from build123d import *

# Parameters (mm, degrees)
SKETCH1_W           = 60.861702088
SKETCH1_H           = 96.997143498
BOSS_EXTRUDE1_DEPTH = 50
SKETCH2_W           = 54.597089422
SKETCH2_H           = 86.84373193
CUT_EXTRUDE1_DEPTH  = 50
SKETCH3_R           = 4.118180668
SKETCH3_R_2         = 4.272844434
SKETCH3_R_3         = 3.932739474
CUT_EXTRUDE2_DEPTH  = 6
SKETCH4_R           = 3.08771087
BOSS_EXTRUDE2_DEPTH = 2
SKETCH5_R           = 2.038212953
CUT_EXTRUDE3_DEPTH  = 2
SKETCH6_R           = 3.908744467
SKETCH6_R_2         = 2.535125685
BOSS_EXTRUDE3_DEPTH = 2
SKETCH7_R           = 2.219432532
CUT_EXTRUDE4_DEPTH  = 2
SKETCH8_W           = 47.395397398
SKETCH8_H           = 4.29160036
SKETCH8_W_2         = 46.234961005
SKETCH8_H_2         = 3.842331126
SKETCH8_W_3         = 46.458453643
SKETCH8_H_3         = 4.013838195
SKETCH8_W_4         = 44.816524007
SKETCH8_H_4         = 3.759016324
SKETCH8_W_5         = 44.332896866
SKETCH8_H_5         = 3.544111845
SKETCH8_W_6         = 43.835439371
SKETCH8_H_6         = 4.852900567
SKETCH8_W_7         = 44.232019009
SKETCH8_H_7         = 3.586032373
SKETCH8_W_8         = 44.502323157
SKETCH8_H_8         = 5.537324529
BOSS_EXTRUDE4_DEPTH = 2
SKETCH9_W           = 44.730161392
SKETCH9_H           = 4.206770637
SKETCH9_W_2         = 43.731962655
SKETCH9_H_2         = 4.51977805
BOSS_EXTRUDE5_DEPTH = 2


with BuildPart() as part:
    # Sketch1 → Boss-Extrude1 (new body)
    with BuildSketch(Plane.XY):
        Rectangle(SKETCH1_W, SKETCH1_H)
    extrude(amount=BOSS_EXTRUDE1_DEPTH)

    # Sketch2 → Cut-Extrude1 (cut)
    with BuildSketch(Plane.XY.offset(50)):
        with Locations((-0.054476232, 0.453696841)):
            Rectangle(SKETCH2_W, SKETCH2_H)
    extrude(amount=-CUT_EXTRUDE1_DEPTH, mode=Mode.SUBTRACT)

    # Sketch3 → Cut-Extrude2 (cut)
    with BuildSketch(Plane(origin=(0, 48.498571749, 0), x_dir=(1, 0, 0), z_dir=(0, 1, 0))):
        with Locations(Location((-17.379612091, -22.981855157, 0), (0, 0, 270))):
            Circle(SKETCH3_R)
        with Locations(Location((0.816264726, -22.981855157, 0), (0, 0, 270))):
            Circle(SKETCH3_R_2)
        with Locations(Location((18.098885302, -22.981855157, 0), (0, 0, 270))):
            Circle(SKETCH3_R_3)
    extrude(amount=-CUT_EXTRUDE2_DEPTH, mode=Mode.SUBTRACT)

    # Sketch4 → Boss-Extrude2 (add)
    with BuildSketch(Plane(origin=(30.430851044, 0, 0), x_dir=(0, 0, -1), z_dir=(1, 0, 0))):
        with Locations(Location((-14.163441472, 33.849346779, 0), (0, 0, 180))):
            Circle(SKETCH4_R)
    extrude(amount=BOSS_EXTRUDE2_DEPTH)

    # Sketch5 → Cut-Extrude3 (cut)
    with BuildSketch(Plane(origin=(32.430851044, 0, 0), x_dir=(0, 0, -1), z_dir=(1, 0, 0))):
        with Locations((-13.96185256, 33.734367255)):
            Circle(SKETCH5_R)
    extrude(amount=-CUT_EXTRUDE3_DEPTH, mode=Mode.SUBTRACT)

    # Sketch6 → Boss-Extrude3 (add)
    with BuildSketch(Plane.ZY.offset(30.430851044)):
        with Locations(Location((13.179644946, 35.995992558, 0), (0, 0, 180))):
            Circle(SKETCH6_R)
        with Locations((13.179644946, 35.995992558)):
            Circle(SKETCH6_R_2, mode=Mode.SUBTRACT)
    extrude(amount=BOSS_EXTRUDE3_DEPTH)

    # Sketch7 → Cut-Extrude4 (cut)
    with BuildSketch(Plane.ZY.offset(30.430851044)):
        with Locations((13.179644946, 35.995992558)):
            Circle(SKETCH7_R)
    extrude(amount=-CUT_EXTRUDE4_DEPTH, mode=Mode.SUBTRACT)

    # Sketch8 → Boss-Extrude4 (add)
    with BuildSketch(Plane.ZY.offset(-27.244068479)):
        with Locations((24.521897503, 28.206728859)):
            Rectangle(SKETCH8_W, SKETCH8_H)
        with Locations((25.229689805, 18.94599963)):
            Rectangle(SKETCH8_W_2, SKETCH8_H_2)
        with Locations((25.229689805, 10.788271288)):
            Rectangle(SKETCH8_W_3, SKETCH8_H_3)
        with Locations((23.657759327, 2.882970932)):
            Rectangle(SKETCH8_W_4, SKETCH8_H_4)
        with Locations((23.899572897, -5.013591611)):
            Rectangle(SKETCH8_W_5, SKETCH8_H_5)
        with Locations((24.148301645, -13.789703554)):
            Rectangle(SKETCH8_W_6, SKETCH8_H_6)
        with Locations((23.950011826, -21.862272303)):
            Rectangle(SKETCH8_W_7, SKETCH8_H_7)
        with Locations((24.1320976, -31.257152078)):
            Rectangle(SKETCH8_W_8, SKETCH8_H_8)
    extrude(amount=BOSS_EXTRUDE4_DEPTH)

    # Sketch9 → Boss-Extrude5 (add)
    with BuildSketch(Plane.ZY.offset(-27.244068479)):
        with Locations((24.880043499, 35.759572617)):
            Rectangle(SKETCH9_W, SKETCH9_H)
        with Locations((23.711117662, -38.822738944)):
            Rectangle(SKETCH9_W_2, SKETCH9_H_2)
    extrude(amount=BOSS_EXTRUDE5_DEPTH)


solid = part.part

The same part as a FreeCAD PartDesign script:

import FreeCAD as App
import Part
import Sketcher
Q = App.Units.Quantity


def add_polygon(sketch, points):
    """Adds a closed chain of lines whose ends are joined by coincident constraints."""
    first, n = sketch.GeometryCount, len(points)
    for a, b in zip(points, points[1:] + points[:1]):
        sketch.addGeometry(Part.LineSegment(App.Vector(*a, 0), App.Vector(*b, 0)), False)
    for i in range(n):
        sketch.addConstraint(Sketcher.Constraint("Coincident", first + i, 2, first + (i + 1) % n, 1))

doc = App.newDocument("Part")
body = doc.addObject("PartDesign::Body", "Body")

# Sketch on XY plane
sketch1 = doc.addObject("Sketcher::SketchObject", "Sketch")
body.addObject(sketch1)
sketch1.AttachmentSupport = (doc.XY_Plane, [""])
sketch1.MapMode = "FlatFace"
add_polygon(sketch1, [(-30, 48), (-30, -48), (30, -48), (30, 48)])  # lines 0-3
sketch1.addConstraint(Sketcher.Constraint("Vertical", 0))
sketch1.addConstraint(Sketcher.Constraint("Horizontal", 1))
sketch1.addConstraint(Sketcher.Constraint("Vertical", 2))
sketch1.addConstraint(Sketcher.Constraint("Horizontal", 3))
sketch1.addConstraint(Sketcher.Constraint("Symmetric", 0, 2, 2, 2, -1, 1))
sketch1.addConstraint(Sketcher.Constraint("DistanceX", 1, 1, 1, 2, Q("60.861702 mm")))
sketch1.addConstraint(Sketcher.Constraint("DistanceY", 0, 2, 0, 1, Q("96.997143 mm")))
pad1 = doc.addObject("PartDesign::Pad", "Pad")
body.addObject(pad1)
pad1.Profile = sketch1
pad1.Length = 50

# Sketch on XY plane
sketch2 = doc.addObject("Sketcher::SketchObject", "Sketch001")
body.addObject(sketch2)
sketch2.AttachmentSupport = (doc.XY_Plane, [""])
sketch2.MapMode = "FlatFace"
sketch2.AttachmentOffset = App.Placement(App.Vector(0, 0, 50), App.Rotation())
add_polygon(sketch2, [(-27, 44), (-27, -43), (27, -43), (27, 44)])  # lines 0-3
sketch2.addConstraint(Sketcher.Constraint("Vertical", 0))
sketch2.addConstraint(Sketcher.Constraint("Horizontal", 1))
sketch2.addConstraint(Sketcher.Constraint("Vertical", 2))
sketch2.addConstraint(Sketcher.Constraint("Horizontal", 3))
sketch2.addConstraint(Sketcher.Constraint("DistanceX", 1, 1, 1, 2, Q("54.597089 mm")))
sketch2.addConstraint(Sketcher.Constraint("DistanceY", 0, 2, 0, 1, Q("86.843732 mm")))
sketch2.addConstraint(Sketcher.Constraint("DistanceX", 0, 2, -1, 1, Q("27.353021 mm")))
sketch2.addConstraint(Sketcher.Constraint("DistanceY", 0, 2, -1, 1, Q("42.968169 mm")))
pocket1 = doc.addObject("PartDesign::Pocket", "Pocket")
body.addObject(pocket1)
pocket1.Profile = sketch2
pocket1.Length = 50

# Sketch on XZ plane
sketch3 = doc.addObject("Sketcher::SketchObject", "Sketch002")
body.addObject(sketch3)
sketch3.AttachmentSupport = (doc.XZ_Plane, [""])
sketch3.MapMode = "FlatFace"
sketch3.AttachmentOffset = App.Placement(App.Vector(0, 0, -48.498572), App.Rotation())
sketch3.addGeometry(Part.Circle(App.Vector(-17.4, 23, 0), App.Vector(0, 0, 1), 4.1), False)
sketch3.addGeometry(Part.Circle(App.Vector(0.8, 23, 0), App.Vector(0, 0, 1), 4.3), False)
sketch3.addGeometry(Part.Circle(App.Vector(18.1, 23, 0), App.Vector(0, 0, 1), 3.9), False)
sketch3.addConstraint(Sketcher.Constraint("Horizontal", 0, 3, 1, 3))
sketch3.addConstraint(Sketcher.Constraint("Horizontal", 1, 3, 2, 3))
sketch3.addConstraint(Sketcher.Constraint("Diameter", 0, Q("8.236361 mm")))
sketch3.addConstraint(Sketcher.Constraint("Diameter", 1, Q("8.545689 mm")))
sketch3.addConstraint(Sketcher.Constraint("Diameter", 2, Q("7.865479 mm")))
sketch3.addConstraint(Sketcher.Constraint("DistanceX", 1, 3, 2, 3, Q("17.282621 mm")))
sketch3.addConstraint(Sketcher.Constraint("DistanceX", 0, 3, -1, 1, Q("17.379612 mm")))
sketch3.addConstraint(Sketcher.Constraint("DistanceY", -1, 1, 0, 3, Q("22.981855 mm")))
sketch3.addConstraint(Sketcher.Constraint("DistanceX", -1, 1, 1, 3, Q("0.816265 mm")))
pocket2 = doc.addObject("PartDesign::Pocket", "Pocket001")
body.addObject(pocket2)
pocket2.Profile = sketch3
pocket2.Length = 6
pocket2.Reversed = True

# Sketch on YZ plane
sketch4 = doc.addObject("Sketcher::SketchObject", "Sketch003")
body.addObject(sketch4)
sketch4.AttachmentSupport = (doc.YZ_Plane, [""])
sketch4.MapMode = "FlatFace"
sketch4.AttachmentOffset = App.Placement(App.Vector(0, 0, 30.430851), App.Rotation())
sketch4.addGeometry(Part.Circle(App.Vector(33.8, 14.2, 0), App.Vector(0, 0, 1), 3.1), False)
sketch4.addConstraint(Sketcher.Constraint("Diameter", 0, Q("6.175422 mm")))
sketch4.addConstraint(Sketcher.Constraint("DistanceY", -1, 1, 0, 3, Q("14.163441 mm")))
sketch4.addConstraint(Sketcher.Constraint("DistanceX", -1, 1, 0, 3, Q("33.849347 mm")))
pad2 = doc.addObject("PartDesign::Pad", "Pad001")
body.addObject(pad2)
pad2.Profile = sketch4
pad2.Length = 2

# Sketch on YZ plane
sketch5 = doc.addObject("Sketcher::SketchObject", "Sketch004")
body.addObject(sketch5)
sketch5.AttachmentSupport = (doc.YZ_Plane, [""])
sketch5.MapMode = "FlatFace"
sketch5.AttachmentOffset = App.Placement(App.Vector(0, 0, 32.430851), App.Rotation())
sketch5.addGeometry(Part.Circle(App.Vector(33.7, 14, 0), App.Vector(0, 0, 1), 2), False)
sketch5.addConstraint(Sketcher.Constraint("Diameter", 0, Q("4.076426 mm")))
sketch5.addConstraint(Sketcher.Constraint("DistanceX", -1, 1, 0, 3, Q("33.734367 mm")))
sketch5.addConstraint(Sketcher.Constraint("DistanceY", -1, 1, 0, 3, Q("13.961853 mm")))
pocket3 = doc.addObject("PartDesign::Pocket", "Pocket002")
body.addObject(pocket3)
pocket3.Profile = sketch5
pocket3.Length = 2

# Sketch on YZ plane
sketch6 = doc.addObject("Sketcher::SketchObject", "Sketch005")
body.addObject(sketch6)
sketch6.AttachmentSupport = (doc.YZ_Plane, [""])
sketch6.MapMode = "FlatFace"
sketch6.AttachmentOffset = App.Placement(App.Vector(0, 0, -30.430851), App.Rotation())
sketch6.addGeometry(Part.Circle(App.Vector(36, 13.2, 0), App.Vector(0, 0, 1), 3.9), False)
sketch6.addGeometry(Part.Circle(App.Vector(36, 13.2, 0), App.Vector(0, 0, 1), 2.5), False)
sketch6.addConstraint(Sketcher.Constraint("Coincident", 1, 3, 0, 3))
sketch6.addConstraint(Sketcher.Constraint("Diameter", 0, Q("7.817489 mm")))
sketch6.addConstraint(Sketcher.Constraint("Diameter", 1, Q("5.070251 mm")))
sketch6.addConstraint(Sketcher.Constraint("DistanceX", -1, 1, 0, 3, Q("35.995993 mm")))
sketch6.addConstraint(Sketcher.Constraint("DistanceY", -1, 1, 0, 3, Q("13.179645 mm")))
pad3 = doc.addObject("PartDesign::Pad", "Pad002")
body.addObject(pad3)
pad3.Profile = sketch6
pad3.Length = 2
pad3.Reversed = True

# Sketch on YZ plane
sketch7 = doc.addObject("Sketcher::SketchObject", "Sketch006")
body.addObject(sketch7)
sketch7.AttachmentSupport = (doc.YZ_Plane, [""])
sketch7.MapMode = "FlatFace"
sketch7.AttachmentOffset = App.Placement(App.Vector(0, 0, -30.430851), App.Rotation())
sketch7.addGeometry(Part.Circle(App.Vector(36, 13.2, 0), App.Vector(0, 0, 1), 2.2), False)
sketch7.addConstraint(Sketcher.Constraint("Diameter", 0, Q("4.438865 mm")))
sketch7.addConstraint(Sketcher.Constraint("DistanceX", -1, 1, 0, 3, Q("35.995993 mm")))
sketch7.addConstraint(Sketcher.Constraint("DistanceY", -1, 1, 0, 3, Q("13.179645 mm")))
pocket4 = doc.addObject("PartDesign::Pocket", "Pocket003")
body.addObject(pocket4)
pocket4.Profile = sketch7
pocket4.Length = 2
pocket4.Reversed = True

# Sketch on YZ plane
sketch8 = doc.addObject("Sketcher::SketchObject", "Sketch007")
body.addObject(sketch8)
sketch8.AttachmentSupport = (doc.YZ_Plane, [""])
sketch8.MapMode = "FlatFace"
sketch8.AttachmentOffset = App.Placement(App.Vector(0, 0, 27.244068), App.Rotation())
add_polygon(sketch8, [(30.4, 0.8), (26.1, 0.8), (26.1, 48.2), (30.4, 48.2)])  # lines 0-3
add_polygon(sketch8, [(20.9, 2.1), (17, 2.1), (17, 48.3), (20.9, 48.3)])  # lines 4-7
add_polygon(sketch8, [(12.8, 2), (8.8, 2), (8.8, 48.5), (12.8, 48.5)])  # lines 8-11
add_polygon(sketch8, [(4.8, 1.2), (1, 1.2), (1, 46.1), (4.8, 46.1)])  # lines 12-15
add_polygon(sketch8, [(-3.2, 1.7), (-6.8, 1.7), (-6.8, 46.1), (-3.2, 46.1)])  # lines 16-19
add_polygon(sketch8, [(-11.4, 2.2), (-16.2, 2.2), (-16.2, 46.1), (-11.4, 46.1)])  # lines 20-23
add_polygon(sketch8, [(-20.1, 1.8), (-23.7, 1.8), (-23.7, 46.1), (-20.1, 46.1)])  # lines 24-27
add_polygon(sketch8, [(-28.5, 1.9), (-34, 1.9), (-34, 46.4), (-28.5, 46.4)])  # lines 28-31
sketch8.addConstraint(Sketcher.Constraint("Horizontal", 0))
sketch8.addConstraint(Sketcher.Constraint("Vertical", 1))
sketch8.addConstraint(Sketcher.Constraint("Horizontal", 2))
sketch8.addConstraint(Sketcher.Constraint("Vertical", 3))
sketch8.addConstraint(Sketcher.Constraint("Horizontal", 4))
sketch8.addConstraint(Sketcher.Constraint("Vertical", 5))
sketch8.addConstraint(Sketcher.Constraint("Horizontal", 6))
sketch8.addConstraint(Sketcher.Constraint("Vertical", 7))
sketch8.addConstraint(Sketcher.Constraint("Horizontal", 8))
sketch8.addConstraint(Sketcher.Constraint("Vertical", 9))
sketch8.addConstraint(Sketcher.Constraint("Horizontal", 10))
sketch8.addConstraint(Sketcher.Constraint("Vertical", 11))
sketch8.addConstraint(Sketcher.Constraint("Horizontal", 12))
sketch8.addConstraint(Sketcher.Constraint("Vertical", 13))
sketch8.addConstraint(Sketcher.Constraint("Horizontal", 14))
sketch8.addConstraint(Sketcher.Constraint("Vertical", 15))
sketch8.addConstraint(Sketcher.Constraint("Horizontal", 16))
sketch8.addConstraint(Sketcher.Constraint("Vertical", 17))
sketch8.addConstraint(Sketcher.Constraint("Horizontal", 18))
sketch8.addConstraint(Sketcher.Constraint("Vertical", 19))
sketch8.addConstraint(Sketcher.Constraint("Horizontal", 20))
sketch8.addConstraint(Sketcher.Constraint("Vertical", 21))
sketch8.addConstraint(Sketcher.Constraint("Horizontal", 22))
sketch8.addConstraint(Sketcher.Constraint("Vertical", 23))
sketch8.addConstraint(Sketcher.Constraint("Horizontal", 24))
sketch8.addConstraint(Sketcher.Constraint("Vertical", 25))
sketch8.addConstraint(Sketcher.Constraint("Horizontal", 26))
sketch8.addConstraint(Sketcher.Constraint("Vertical", 27))
sketch8.addConstraint(Sketcher.Constraint("Horizontal", 28))
sketch8.addConstraint(Sketcher.Constraint("Vertical", 29))
sketch8.addConstraint(Sketcher.Constraint("Horizontal", 30))
sketch8.addConstraint(Sketcher.Constraint("Vertical", 31))
sketch8.addConstraint(Sketcher.Constraint("Horizontal", 14, 2, 17, 2))
sketch8.addConstraint(Sketcher.Constraint("Horizontal", 18, 2, 21, 2))
sketch8.addConstraint(Sketcher.Constraint("Horizontal", 22, 2, 25, 2))
sketch8.addConstraint(Sketcher.Constraint("DistanceX", 0, 2, 0, 1, Q("4.2916 mm")))
sketch8.addConstraint(Sketcher.Constraint("DistanceX", 20, 2, 20, 1, Q("4.852901 mm")))
sketch8.addConstraint(Sketcher.Constraint("DistanceX", 16, 2, 8, 2, Q("15.567 mm")))
sketch8.addConstraint(Sketcher.Constraint("DistanceX", 18, 2, 13, 2, Q("4.244998 mm")))
sketch8.addConstraint(Sketcher.Constraint("DistanceX", 4, 2, 4, 1, Q("3.842331 mm")))
sketch8.addConstraint(Sketcher.Constraint("DistanceX", 8, 2, 8, 1, Q("4.013838 mm")))
sketch8.addConstraint(Sketcher.Constraint("DistanceX", 16, 2, 16, 1, Q("3.544112 mm")))
sketch8.addConstraint(Sketcher.Constraint("DistanceY", 5, 1, 5, 2, Q("46.234961 mm")))
sketch8.addConstraint(Sketcher.Constraint("DistanceY", 21, 1, 21, 2, Q("43.835439 mm")))
sketch8.addConstraint(Sketcher.Constraint("DistanceY", 25, 1, 25, 2, Q("44.232019 mm")))
sketch8.addConstraint(Sketcher.Constraint("DistanceY", -1, 1, 0, 2, Q("0.824199 mm")))
sketch8.addConstraint(Sketcher.Constraint("DistanceY", 0, 2, 12, 2, Q("0.425299 mm")))
sketch8.addConstraint(Sketcher.Constraint("DistanceX", 30, 2, 25, 2, Q("4.833201 mm")))
sketch8.addConstraint(Sketcher.Constraint("DistanceX", 12, 2, 12, 1, Q("3.759016 mm")))
sketch8.addConstraint(Sketcher.Constraint("DistanceX", 24, 2, 24, 1, Q("3.586032 mm")))
sketch8.addConstraint(Sketcher.Constraint("DistanceX", 28, 2, 28, 1, Q("5.537325 mm")))
sketch8.addConstraint(Sketcher.Constraint("DistanceY", 1, 1, 1, 2, Q("47.395397 mm")))
sketch8.addConstraint(Sketcher.Constraint("DistanceY", 9, 1, 9, 2, Q("46.458454 mm")))
sketch8.addConstraint(Sketcher.Constraint("DistanceY", 13, 1, 13, 2, Q("44.816524 mm")))
sketch8.addConstraint(Sketcher.Constraint("DistanceY", 17, 1, 17, 2, Q("44.332897 mm")))
sketch8.addConstraint(Sketcher.Constraint("DistanceY", 29, 1, 29, 2, Q("44.502323 mm")))
sketch8.addConstraint(Sketcher.Constraint("DistanceX", -1, 1, 0, 2, Q("26.060929 mm")))
sketch8.addConstraint(Sketcher.Constraint("DistanceY", -1, 1, 4, 2, Q("2.112209 mm")))
sketch8.addConstraint(Sketcher.Constraint("DistanceX", -1, 1, 10, 2, Q("12.79519 mm")))
sketch8.addConstraint(Sketcher.Constraint("DistanceX", 24, 2, -1, 1, Q("23.655288 mm")))
sketch8.addConstraint(Sketcher.Constraint("DistanceY", -1, 1, 29, 2, Q("46.383259 mm")))
sketch8.addConstraint(Sketcher.Constraint("DistanceX", 8, 2, 4, 2, Q("8.243482 mm")))
sketch8.addConstraint(Sketcher.Constraint("DistanceY", 1, 2, 9, 2, Q("0.23932 mm")))
sketch8.addConstraint(Sketcher.Constraint("DistanceX", 20, 2, 19, 2, Q("12.974618 mm")))
pad4 = doc.addObject("PartDesign::Pad", "Pad003")
body.addObject(pad4)
pad4.Profile = sketch8
pad4.Length = 2
pad4.Reversed = True

# Sketch on YZ plane
sketch9 = doc.addObject("Sketcher::SketchObject", "Sketch008")
body.addObject(sketch9)
sketch9.AttachmentSupport = (doc.YZ_Plane, [""])
sketch9.MapMode = "FlatFace"
sketch9.AttachmentOffset = App.Placement(App.Vector(0, 0, 27.244068), App.Rotation())
add_polygon(sketch9, [(37.9, 2.5), (33.7, 2.5), (33.7, 47.2), (37.9, 47.2)])  # lines 0-3
add_polygon(sketch9, [(-36.6, 1.8), (-41.1, 1.8), (-41.1, 45.6), (-36.6, 45.6)])  # lines 4-7
sketch9.addConstraint(Sketcher.Constraint("Horizontal", 0))
sketch9.addConstraint(Sketcher.Constraint("Vertical", 1))
sketch9.addConstraint(Sketcher.Constraint("Horizontal", 2))
sketch9.addConstraint(Sketcher.Constraint("Vertical", 3))
sketch9.addConstraint(Sketcher.Constraint("Horizontal", 4))
sketch9.addConstraint(Sketcher.Constraint("Vertical", 5))
sketch9.addConstraint(Sketcher.Constraint("Horizontal", 6))
sketch9.addConstraint(Sketcher.Constraint("Vertical", 7))
sketch9.addConstraint(Sketcher.Constraint("DistanceX", 0, 2, 0, 1, Q("4.206771 mm")))
sketch9.addConstraint(Sketcher.Constraint("DistanceX", 4, 2, 4, 1, Q("4.519778 mm")))
sketch9.addConstraint(Sketcher.Constraint("DistanceY", 1, 1, 1, 2, Q("44.730161 mm")))
sketch9.addConstraint(Sketcher.Constraint("DistanceY", -1, 1, 5, 2, Q("45.577099 mm")))
sketch9.addConstraint(Sketcher.Constraint("DistanceY", 5, 1, 5, 2, Q("43.731963 mm")))
sketch9.addConstraint(Sketcher.Constraint("DistanceX", 6, 2, -1, 1, Q("36.56285 mm")))
sketch9.addConstraint(Sketcher.Constraint("DistanceX", -1, 1, 0, 2, Q("33.656187 mm")))
sketch9.addConstraint(Sketcher.Constraint("DistanceY", -1, 1, 0, 2, Q("2.514963 mm")))
pad5 = doc.addObject("PartDesign::Pad", "Pad004")
body.addObject(pad5)
pad5.Profile = sketch9
pad5.Length = 2
pad5.Reversed = True

doc.recompute()
